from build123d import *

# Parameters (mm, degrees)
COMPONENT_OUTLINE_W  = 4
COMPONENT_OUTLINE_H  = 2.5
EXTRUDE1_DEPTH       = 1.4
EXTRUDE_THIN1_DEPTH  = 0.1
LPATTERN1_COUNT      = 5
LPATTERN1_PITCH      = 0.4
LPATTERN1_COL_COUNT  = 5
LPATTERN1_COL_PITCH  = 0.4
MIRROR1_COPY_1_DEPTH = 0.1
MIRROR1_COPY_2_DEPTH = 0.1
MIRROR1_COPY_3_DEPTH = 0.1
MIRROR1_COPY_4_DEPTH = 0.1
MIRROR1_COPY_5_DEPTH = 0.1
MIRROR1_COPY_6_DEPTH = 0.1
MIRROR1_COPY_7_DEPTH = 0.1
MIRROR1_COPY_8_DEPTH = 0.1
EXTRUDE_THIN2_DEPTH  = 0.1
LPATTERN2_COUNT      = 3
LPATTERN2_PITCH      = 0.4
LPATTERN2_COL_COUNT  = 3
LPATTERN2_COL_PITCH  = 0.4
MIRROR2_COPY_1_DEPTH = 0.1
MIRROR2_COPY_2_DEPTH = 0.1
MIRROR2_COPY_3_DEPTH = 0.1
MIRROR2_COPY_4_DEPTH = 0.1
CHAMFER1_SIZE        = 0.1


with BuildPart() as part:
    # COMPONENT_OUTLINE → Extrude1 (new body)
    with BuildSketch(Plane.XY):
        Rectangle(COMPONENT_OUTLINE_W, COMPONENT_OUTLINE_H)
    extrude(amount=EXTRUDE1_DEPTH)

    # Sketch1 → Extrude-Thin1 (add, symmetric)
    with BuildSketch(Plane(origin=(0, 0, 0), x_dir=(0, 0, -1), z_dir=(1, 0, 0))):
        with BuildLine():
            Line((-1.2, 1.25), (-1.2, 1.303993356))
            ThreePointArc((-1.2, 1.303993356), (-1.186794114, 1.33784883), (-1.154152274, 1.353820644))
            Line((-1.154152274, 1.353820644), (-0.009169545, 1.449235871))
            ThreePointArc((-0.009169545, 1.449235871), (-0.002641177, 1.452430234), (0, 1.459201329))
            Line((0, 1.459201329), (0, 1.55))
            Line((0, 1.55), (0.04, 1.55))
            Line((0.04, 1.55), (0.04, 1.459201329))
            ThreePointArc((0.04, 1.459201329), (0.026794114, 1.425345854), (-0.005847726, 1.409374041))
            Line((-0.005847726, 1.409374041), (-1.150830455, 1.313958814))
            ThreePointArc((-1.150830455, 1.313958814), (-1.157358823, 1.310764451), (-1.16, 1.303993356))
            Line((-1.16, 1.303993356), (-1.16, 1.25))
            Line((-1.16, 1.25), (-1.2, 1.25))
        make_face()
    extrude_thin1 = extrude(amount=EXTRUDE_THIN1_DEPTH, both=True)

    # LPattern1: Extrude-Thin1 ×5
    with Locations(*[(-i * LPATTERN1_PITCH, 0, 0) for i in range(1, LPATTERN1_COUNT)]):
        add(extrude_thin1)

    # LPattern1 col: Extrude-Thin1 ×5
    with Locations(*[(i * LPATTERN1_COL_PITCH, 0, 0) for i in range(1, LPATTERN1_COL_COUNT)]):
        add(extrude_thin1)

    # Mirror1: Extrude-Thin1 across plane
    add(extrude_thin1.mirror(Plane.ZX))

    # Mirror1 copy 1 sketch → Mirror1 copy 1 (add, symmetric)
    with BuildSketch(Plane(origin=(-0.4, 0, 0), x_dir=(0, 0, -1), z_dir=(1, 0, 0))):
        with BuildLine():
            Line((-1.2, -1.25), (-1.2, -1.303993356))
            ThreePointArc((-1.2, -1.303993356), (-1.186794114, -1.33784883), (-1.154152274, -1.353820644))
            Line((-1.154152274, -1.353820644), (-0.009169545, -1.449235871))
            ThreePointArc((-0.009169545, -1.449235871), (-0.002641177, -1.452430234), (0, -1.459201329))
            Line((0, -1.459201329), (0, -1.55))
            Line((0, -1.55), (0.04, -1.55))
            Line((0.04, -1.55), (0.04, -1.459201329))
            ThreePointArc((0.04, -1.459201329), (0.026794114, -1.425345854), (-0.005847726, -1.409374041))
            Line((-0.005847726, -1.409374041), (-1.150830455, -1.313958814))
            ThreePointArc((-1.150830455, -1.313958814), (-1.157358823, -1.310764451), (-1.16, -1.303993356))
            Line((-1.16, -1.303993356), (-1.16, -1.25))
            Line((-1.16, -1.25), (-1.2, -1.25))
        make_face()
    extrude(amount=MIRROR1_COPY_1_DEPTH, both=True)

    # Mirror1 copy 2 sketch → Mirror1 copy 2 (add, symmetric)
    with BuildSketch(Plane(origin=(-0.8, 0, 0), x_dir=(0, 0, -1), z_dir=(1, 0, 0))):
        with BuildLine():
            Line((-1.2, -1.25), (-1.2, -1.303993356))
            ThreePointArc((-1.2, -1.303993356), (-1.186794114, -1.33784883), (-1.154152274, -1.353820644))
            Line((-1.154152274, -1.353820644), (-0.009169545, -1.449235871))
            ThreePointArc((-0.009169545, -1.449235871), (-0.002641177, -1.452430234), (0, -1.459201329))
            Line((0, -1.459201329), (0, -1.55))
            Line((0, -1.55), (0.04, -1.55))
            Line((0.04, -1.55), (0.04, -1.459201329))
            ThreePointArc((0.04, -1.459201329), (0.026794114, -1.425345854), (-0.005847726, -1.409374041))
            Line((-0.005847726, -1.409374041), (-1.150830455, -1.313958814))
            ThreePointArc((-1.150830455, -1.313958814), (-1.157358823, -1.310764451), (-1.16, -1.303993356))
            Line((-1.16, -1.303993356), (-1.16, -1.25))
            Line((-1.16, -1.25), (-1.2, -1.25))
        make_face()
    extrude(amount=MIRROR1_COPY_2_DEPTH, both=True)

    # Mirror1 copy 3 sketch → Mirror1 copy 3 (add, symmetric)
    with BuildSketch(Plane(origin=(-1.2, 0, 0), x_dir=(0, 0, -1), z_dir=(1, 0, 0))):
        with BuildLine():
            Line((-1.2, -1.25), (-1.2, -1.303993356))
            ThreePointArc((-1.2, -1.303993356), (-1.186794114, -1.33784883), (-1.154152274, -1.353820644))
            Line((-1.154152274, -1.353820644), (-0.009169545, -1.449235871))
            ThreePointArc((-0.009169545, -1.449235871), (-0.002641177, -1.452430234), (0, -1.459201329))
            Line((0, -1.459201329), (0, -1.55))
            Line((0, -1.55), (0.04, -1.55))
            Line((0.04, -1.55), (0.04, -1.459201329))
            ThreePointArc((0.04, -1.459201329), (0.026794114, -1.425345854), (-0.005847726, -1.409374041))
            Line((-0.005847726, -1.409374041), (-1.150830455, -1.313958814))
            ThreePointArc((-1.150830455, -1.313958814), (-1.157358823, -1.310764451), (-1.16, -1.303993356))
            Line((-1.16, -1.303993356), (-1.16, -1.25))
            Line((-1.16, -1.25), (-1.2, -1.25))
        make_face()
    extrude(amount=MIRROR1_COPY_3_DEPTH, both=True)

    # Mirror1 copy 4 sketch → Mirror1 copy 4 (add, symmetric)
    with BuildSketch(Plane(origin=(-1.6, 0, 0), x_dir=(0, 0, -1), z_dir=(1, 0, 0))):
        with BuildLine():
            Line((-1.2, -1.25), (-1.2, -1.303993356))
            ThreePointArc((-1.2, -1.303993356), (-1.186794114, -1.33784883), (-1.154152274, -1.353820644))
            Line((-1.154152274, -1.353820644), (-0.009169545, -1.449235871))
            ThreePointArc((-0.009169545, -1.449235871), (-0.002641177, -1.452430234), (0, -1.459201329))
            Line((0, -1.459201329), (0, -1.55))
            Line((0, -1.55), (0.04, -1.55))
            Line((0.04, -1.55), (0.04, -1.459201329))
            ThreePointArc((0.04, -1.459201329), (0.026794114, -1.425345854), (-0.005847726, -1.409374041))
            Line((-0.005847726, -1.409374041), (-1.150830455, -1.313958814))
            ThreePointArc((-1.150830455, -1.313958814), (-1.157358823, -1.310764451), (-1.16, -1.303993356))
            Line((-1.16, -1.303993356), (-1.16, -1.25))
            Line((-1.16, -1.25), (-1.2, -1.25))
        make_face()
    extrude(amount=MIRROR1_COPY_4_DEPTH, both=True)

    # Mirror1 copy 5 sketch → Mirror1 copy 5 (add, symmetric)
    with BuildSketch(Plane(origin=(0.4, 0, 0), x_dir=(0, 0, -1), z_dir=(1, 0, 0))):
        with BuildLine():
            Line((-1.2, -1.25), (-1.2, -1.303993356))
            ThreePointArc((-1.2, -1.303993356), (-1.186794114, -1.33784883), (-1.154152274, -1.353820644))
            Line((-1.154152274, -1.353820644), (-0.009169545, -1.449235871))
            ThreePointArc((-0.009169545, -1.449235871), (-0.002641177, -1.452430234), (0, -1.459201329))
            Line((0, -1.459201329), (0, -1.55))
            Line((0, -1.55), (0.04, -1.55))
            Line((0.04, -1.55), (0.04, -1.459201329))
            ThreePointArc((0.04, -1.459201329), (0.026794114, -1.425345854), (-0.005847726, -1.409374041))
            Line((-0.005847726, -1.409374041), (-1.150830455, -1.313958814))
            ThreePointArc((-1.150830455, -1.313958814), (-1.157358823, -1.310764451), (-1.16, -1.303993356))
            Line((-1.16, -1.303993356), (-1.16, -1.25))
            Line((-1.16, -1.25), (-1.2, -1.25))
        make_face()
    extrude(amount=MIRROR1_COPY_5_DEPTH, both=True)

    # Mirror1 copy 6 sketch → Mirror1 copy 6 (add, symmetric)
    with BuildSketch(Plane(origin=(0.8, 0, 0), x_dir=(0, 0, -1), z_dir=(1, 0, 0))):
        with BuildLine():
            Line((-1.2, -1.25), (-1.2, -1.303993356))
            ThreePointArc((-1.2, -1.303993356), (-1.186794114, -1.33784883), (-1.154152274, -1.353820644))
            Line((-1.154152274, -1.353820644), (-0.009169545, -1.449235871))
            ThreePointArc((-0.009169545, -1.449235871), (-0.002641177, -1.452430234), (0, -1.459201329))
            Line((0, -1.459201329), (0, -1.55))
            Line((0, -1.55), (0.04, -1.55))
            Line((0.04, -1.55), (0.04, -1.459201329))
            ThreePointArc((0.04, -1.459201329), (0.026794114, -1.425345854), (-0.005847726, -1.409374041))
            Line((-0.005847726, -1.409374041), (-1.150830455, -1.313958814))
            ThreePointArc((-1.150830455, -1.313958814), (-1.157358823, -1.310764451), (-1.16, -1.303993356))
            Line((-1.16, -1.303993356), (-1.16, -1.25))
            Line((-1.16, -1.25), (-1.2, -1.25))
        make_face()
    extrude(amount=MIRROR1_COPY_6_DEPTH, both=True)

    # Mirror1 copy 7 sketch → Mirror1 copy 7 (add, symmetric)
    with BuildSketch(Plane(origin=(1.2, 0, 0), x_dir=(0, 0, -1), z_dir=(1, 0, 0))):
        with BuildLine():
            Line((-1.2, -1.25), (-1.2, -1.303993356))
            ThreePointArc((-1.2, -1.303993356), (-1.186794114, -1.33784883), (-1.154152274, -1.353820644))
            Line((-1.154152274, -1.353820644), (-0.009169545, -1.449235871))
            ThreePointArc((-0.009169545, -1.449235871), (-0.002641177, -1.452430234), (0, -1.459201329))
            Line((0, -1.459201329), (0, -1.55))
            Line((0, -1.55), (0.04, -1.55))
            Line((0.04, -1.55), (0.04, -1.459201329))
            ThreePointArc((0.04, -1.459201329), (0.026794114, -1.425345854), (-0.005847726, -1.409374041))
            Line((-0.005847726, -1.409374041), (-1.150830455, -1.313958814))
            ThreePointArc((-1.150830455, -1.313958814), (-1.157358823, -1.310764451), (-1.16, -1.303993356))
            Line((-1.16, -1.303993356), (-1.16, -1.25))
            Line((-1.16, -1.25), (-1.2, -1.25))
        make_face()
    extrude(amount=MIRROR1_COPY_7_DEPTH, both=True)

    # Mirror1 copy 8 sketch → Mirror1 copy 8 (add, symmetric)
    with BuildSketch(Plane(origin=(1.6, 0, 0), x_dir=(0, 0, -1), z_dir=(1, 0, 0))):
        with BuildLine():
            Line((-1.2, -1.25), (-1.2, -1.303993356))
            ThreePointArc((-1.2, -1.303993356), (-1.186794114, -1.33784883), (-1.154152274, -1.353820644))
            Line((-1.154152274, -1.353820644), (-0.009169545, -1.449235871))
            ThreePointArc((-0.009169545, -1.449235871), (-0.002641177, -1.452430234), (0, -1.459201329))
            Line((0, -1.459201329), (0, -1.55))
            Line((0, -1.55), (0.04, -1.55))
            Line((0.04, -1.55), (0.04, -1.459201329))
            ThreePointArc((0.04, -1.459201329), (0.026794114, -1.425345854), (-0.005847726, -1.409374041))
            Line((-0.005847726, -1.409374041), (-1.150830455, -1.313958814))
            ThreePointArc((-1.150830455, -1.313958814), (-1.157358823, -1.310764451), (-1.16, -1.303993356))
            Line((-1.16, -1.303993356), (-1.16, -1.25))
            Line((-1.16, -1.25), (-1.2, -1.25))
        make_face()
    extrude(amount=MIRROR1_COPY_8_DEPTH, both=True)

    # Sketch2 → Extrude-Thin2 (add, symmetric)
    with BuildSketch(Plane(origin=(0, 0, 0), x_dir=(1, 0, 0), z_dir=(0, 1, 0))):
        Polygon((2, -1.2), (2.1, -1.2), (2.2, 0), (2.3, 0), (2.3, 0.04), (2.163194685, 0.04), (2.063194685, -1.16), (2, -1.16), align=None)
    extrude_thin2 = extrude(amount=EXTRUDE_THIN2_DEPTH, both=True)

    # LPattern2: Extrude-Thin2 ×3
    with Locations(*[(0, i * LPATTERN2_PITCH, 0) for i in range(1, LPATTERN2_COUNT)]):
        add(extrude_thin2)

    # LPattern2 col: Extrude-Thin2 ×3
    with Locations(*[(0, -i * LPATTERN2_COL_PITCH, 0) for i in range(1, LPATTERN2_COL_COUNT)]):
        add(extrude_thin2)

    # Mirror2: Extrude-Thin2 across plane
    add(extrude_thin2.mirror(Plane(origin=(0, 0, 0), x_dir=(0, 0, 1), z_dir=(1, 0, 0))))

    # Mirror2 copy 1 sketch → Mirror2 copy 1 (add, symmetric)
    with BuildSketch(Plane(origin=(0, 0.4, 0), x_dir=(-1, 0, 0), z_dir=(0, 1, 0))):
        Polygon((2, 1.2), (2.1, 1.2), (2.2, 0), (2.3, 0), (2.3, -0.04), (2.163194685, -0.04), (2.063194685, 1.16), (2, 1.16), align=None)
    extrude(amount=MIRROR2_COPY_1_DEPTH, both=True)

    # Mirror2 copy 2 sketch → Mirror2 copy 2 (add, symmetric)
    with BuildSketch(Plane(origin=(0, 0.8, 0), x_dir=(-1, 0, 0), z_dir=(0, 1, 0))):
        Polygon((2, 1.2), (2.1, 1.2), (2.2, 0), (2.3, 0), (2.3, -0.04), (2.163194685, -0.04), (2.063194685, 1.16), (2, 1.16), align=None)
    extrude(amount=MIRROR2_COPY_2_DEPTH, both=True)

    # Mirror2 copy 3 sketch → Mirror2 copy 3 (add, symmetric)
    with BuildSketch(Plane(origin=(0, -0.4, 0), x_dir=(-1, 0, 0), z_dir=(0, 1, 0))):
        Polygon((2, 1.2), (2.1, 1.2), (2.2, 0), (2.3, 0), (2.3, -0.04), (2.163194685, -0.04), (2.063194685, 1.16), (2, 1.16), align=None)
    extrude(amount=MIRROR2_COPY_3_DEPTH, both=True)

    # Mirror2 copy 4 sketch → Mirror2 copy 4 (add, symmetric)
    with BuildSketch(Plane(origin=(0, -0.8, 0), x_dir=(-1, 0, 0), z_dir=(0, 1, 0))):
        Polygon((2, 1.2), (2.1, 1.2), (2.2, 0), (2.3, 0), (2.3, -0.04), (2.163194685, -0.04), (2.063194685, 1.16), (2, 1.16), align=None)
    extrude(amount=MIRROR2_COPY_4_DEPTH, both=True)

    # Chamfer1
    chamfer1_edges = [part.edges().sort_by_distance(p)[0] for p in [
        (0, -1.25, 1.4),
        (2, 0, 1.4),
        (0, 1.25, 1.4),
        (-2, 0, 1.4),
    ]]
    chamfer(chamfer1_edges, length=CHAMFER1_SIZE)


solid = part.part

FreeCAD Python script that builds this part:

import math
import FreeCAD as App
import Part
import Sketcher

V = App.Vector
Q = App.Units.Quantity


def edges_at(feature, points):
    """Names of the edges that pass closest to the given points."""
    edges = feature.Shape.Edges
    near = lambda p: min(range(len(edges)), key=lambda i: edges[i].distToShape(Part.Vertex(*p))[0])
    return sorted({f"Edge{near(p) + 1}" for p in points})


def add_polygon(sketch, points):
    """Adds a closed chain of lines whose ends are joined by coincident constraints."""
    first, n = sketch.GeometryCount, len(points)
    for a, b in zip(points, points[1:] + points[:1]):
        sketch.addGeometry(Part.LineSegment(App.Vector(*a, 0), App.Vector(*b, 0)), False)
    for i in range(n):
        sketch.addConstraint(Sketcher.Constraint("Coincident", first + i, 2, first + (i + 1) % n, 1))

doc = App.newDocument("Part")
body = doc.addObject("PartDesign::Body", "Body")

# Sketch on XY plane
sketch1 = body.newObject("Sketcher::SketchObject", "Sketch")
sketch1.AttachmentSupport = (doc.getObject("XY_Plane"), [""])
sketch1.MapMode = "FlatFace"
add_polygon(sketch1, [(-2, 1.25), (-2, -1.25), (2, -1.25), (2, 1.25)])  # lines 0-3
sketch1.addConstraint([
    Sketcher.Constraint("Vertical", 0),
    Sketcher.Constraint("Horizontal", 1),
    Sketcher.Constraint("Vertical", 2),
    Sketcher.Constraint("Horizontal", 3),
    Sketcher.Constraint("Symmetric", 0, 2, 2, 2, -1, 1),
    Sketcher.Constraint("DistanceX", 1, 1, 1, 2, Q("4 mm")),
    Sketcher.Constraint("DistanceY", 0, 2, 0, 1, Q("2.5 mm")),
])
pad1 = body.newObject("PartDesign::Pad", "Pad")
pad1.Profile = sketch1
pad1.Length = 1.4

# Sketch on YZ plane
sketch2 = body.newObject("Sketcher::SketchObject", "Sketch001")
sketch2.AttachmentSupport = (doc.getObject("YZ_Plane"), [""])
sketch2.MapMode = "FlatFace"
sketch2.addGeometry([
    Part.LineSegment(V(1.303993, 1.2, 0), V(1.25, 1.2, 0)),  # 0
    Part.LineSegment(V(1.25, 1.2, 0), V(1.25, 1.16, 0)),  # 1
    Part.LineSegment(V(1.25, 1.16, 0), V(1.303993, 1.16, 0)),  # 2
    Part.ArcOfCircle(Part.Circle(V(1.303993, 1.15, 0), V(0, 0, 1), 0.01), math.radians(4.763643), math.radians(90)),  # 3
    Part.LineSegment(V(1.313959, 1.15083, 0), V(1.409374, 0.005848, 0)),  # 4
    Part.ArcOfCircle(Part.Circle(V(1.459201, 0.01, 0), V(0, 0, 1), 0.05), math.radians(-175.236358), math.radians(-90)),  # 5
    Part.LineSegment(V(1.459201, -0.04, 0), V(1.55, -0.04, 0)),  # 6
    Part.LineSegment(V(1.55, -0.04, 0), V(1.55, 0, 0)),  # 7
    Part.LineSegment(V(1.55, 0, 0), V(1.459201, 0, 0)),  # 8
    Part.ArcOfCircle(Part.Circle(V(1.459201, 0.01, 0), V(0, 0, 1), 0.01), math.radians(-175.236357), math.radians(-90)),  # 9
    Part.LineSegment(V(1.449236, 0.00917, 0), V(1.353821, 1.154152, 0)),  # 10
    Part.ArcOfCircle(Part.Circle(V(1.303993, 1.15, 0), V(0, 0, 1), 0.05), math.radians(4.763644), math.radians(89.999999)),  # 11
], False)
sketch2.addConstraint([
    Sketcher.Constraint("Coincident", 0, 2, 1, 1),
    Sketcher.Constraint("Coincident", 1, 2, 2, 1),
    Sketcher.Constraint("Tangent", 2, 2, 3, 2),
    Sketcher.Constraint("Tangent", 3, 1, 4, 1),
    Sketcher.Constraint("Tangent", 4, 2, 5, 1),
    Sketcher.Constraint("Tangent", 5, 2, 6, 1),
    Sketcher.Constraint("Coincident", 6, 2, 7, 1),
    Sketcher.Constraint("Coincident", 7, 2, 8, 1),
    Sketcher.Constraint("Tangent", 8, 2, 9, 2),
    Sketcher.Constraint("Tangent", 9, 1, 10, 1),
    Sketcher.Constraint("Tangent", 10, 2, 11, 1),
    Sketcher.Constraint("Tangent", 11, 2, 0, 1),
    Sketcher.Constraint("Horizontal", 0),
    Sketcher.Constraint("Vertical", 1),
    Sketcher.Constraint("Horizontal", 2),
    Sketcher.Constraint("Horizontal", 6),
    Sketcher.Constraint("Vertical", 7),
    Sketcher.Constraint("Horizontal", 8),
    Sketcher.Constraint("Coincident", 9, 3, 5, 3),
    Sketcher.Constraint("Coincident", 11, 3, 3, 3),
    Sketcher.Constraint("Equal", 3, 9),
    Sketcher.Constraint("Equal", 5, 11),
    Sketcher.Constraint("PointOnObject", 7, 2, -1),
    Sketcher.Constraint("Radius", 3, Q("0.01 mm")),
    Sketcher.Constraint("Radius", 5, Q("0.05 mm")),
    Sketcher.Constraint("DistanceY", -1, 1, 0, 2, Q("1.2 mm")),
    Sketcher.Constraint("DistanceX", -1, 1, 0, 2, Q("1.25 mm")),
    Sketcher.Constraint("DistanceX", -1, 1, 6, 2, Q("1.55 mm")),
    Sketcher.Constraint("DistanceX", 6, 1, 6, 2, Q("0.090799 mm")),
    Sketcher.Constraint("Distance", 4, Q("1.148951 mm")),
])
pad2 = body.newObject("PartDesign::Pad", "Pad001")
pad2.Profile = sketch2
pad2.Length = 0.2
pad2.Midplane = True
doc.recompute()

linearpattern = body.newObject("PartDesign::LinearPattern", "LinearPattern")
linearpattern.Originals = [pad2]
linearpattern.Direction = (doc.getObject("X_Axis"), [""])
linearpattern.Mode = "offset"
linearpattern.Offset = 0.4
linearpattern.Occurrences = 5
linearpattern.Reversed = True
body.Tip = linearpattern
doc.recompute()

linearpattern2 = body.newObject("PartDesign::LinearPattern", "LinearPattern001")
linearpattern2.Originals = [pad2]
linearpattern2.Direction = (doc.getObject("X_Axis"), [""])
linearpattern2.Mode = "offset"
linearpattern2.Offset = 0.4
linearpattern2.Occurrences = 5
body.Tip = linearpattern2
doc.recompute()

mirrored = body.newObject("PartDesign::Mirrored", "Mirrored")
mirrored.Originals = [pad2]
mirrored.MirrorPlane = (doc.getObject("XZ_Plane"), [""])
body.Tip = mirrored

# Sketch on YZ plane
sketch3 = body.newObject("Sketcher::SketchObject", "Sketch002")
sketch3.AttachmentSupport = (doc.getObject("YZ_Plane"), [""])
sketch3.MapMode = "FlatFace"
sketch3.AttachmentOffset = App.Placement(V(0, 0, -0.4), App.Rotation())
sketch3.addGeometry([
    Part.LineSegment(V(-1.25, 1.2, 0), V(-1.303993, 1.2, 0)),  # 0
    Part.ArcOfCircle(Part.Circle(V(-1.303993, 1.15, 0), V(0, 0, 1), 0.05), math.radians(90.000001), math.radians(175.236356)),  # 1
    Part.LineSegment(V(-1.353821, 1.154152, 0), V(-1.449236, 0.00917, 0)),  # 2
    Part.ArcOfCircle(Part.Circle(V(-1.459201, 0.01, 0), V(0, 0, 1), 0.01), math.radians(-90), math.radians(-4.763643)),  # 3
    Part.LineSegment(V(-1.459201, 0, 0), V(-1.55, 0, 0)),  # 4
    Part.LineSegment(V(-1.55, 0, 0), V(-1.55, -0.04, 0)),  # 5
    Part.LineSegment(V(-1.55, -0.04, 0), V(-1.459201, -0.04, 0)),  # 6
    Part.ArcOfCircle(Part.Circle(V(-1.459201, 0.01, 0), V(0, 0, 1), 0.05), math.radians(-90), math.radians(-4.763642)),  # 7
    Part.LineSegment(V(-1.409374, 0.005848, 0), V(-1.313959, 1.15083, 0)),  # 8
    Part.ArcOfCircle(Part.Circle(V(-1.303993, 1.15, 0), V(0, 0, 1), 0.01), math.radians(90), math.radians(175.236357)),  # 9
    Part.LineSegment(V(-1.303993, 1.16, 0), V(-1.25, 1.16, 0)),  # 10
    Part.LineSegment(V(-1.25, 1.16, 0), V(-1.25, 1.2, 0)),  # 11
], False)
sketch3.addConstraint([
    Sketcher.Constraint("Tangent", 0, 2, 1, 1),
    Sketcher.Constraint("Tangent", 1, 2, 2, 1),
    Sketcher.Constraint("Tangent", 2, 2, 3, 2),
    Sketcher.Constraint("Tangent", 3, 1, 4, 1),
    Sketcher.Constraint("Coincident", 4, 2, 5, 1),
    Sketcher.Constraint("Coincident", 5, 2, 6, 1),
    Sketcher.Constraint("Tangent", 6, 2, 7, 1),
    Sketcher.Constraint("Tangent", 7, 2, 8, 1),
    Sketcher.Constraint("Tangent", 8, 2, 9, 2),
    Sketcher.Constraint("Tangent", 9, 1, 10, 1),
    Sketcher.Constraint("Coincident", 10, 2, 11, 1),
    Sketcher.Constraint("Coincident", 11, 2, 0, 1),
    Sketcher.Constraint("Horizontal", 0),
    Sketcher.Constraint("Horizontal", 4),
    Sketcher.Constraint("Vertical", 5),
    Sketcher.Constraint("Horizontal", 6),
    Sketcher.Constraint("Horizontal", 10),
    Sketcher.Constraint("Vertical", 11),
    Sketcher.Constraint("Coincident", 7, 3, 3, 3),
    Sketcher.Constraint("Coincident", 9, 3, 1, 3),
    Sketcher.Constraint("Equal", 1, 7),
    Sketcher.Constraint("Equal", 3, 9),
    Sketcher.Constraint("PointOnObject", 3, 1, -1),
    Sketcher.Constraint("Radius", 1, Q("0.05 mm")),
    Sketcher.Constraint("Radius", 3, Q("0.01 mm")),
    Sketcher.Constraint("DistanceY", -1, 1, 0, 2, Q("1.2 mm")),
    Sketcher.Constraint("DistanceX", 4, 2, -1, 1, Q("1.55 mm")),
    Sketcher.Constraint("DistanceX", 10, 2, -1, 1, Q("1.25 mm")),
    Sketcher.Constraint("DistanceX", 4, 2, 4, 1, Q("0.090799 mm")),
    Sketcher.Constraint("Distance", 2, Q("1.148951 mm")),
])
pad3 = body.newObject("PartDesign::Pad", "Pad002")
pad3.Profile = sketch3
pad3.Length = 0.2
pad3.Midplane = True

# Sketch on YZ plane
sketch4 = body.newObject("Sketcher::SketchObject", "Sketch003")
sketch4.AttachmentSupport = (doc.getObject("YZ_Plane"), [""])
sketch4.MapMode = "FlatFace"
sketch4.AttachmentOffset = App.Placement(V(0, 0, -0.8), App.Rotation())
sketch4.addGeometry([
    Part.LineSegment(V(-1.25, 1.2, 0), V(-1.303993, 1.2, 0)),  # 0
    Part.ArcOfCircle(Part.Circle(V(-1.303993, 1.15, 0), V(0, 0, 1), 0.05), math.radians(90.000001), math.radians(175.236356)),  # 1
    Part.LineSegment(V(-1.353821, 1.154152, 0), V(-1.449236, 0.00917, 0)),  # 2
    Part.ArcOfCircle(Part.Circle(V(-1.459201, 0.01, 0), V(0, 0, 1), 0.01), math.radians(-90), math.radians(-4.763643)),  # 3
    Part.LineSegment(V(-1.459201, 0, 0), V(-1.55, 0, 0)),  # 4
    Part.LineSegment(V(-1.55, 0, 0), V(-1.55, -0.04, 0)),  # 5
    Part.LineSegment(V(-1.55, -0.04, 0), V(-1.459201, -0.04, 0)),  # 6
    Part.ArcOfCircle(Part.Circle(V(-1.459201, 0.01, 0), V(0, 0, 1), 0.05), math.radians(-90), math.radians(-4.763642)),  # 7
    Part.LineSegment(V(-1.409374, 0.005848, 0), V(-1.313959, 1.15083, 0)),  # 8
    Part.ArcOfCircle(Part.Circle(V(-1.303993, 1.15, 0), V(0, 0, 1), 0.01), math.radians(90), math.radians(175.236357)),  # 9
    Part.LineSegment(V(-1.303993, 1.16, 0), V(-1.25, 1.16, 0)),  # 10
    Part.LineSegment(V(-1.25, 1.16, 0), V(-1.25, 1.2, 0)),  # 11
], False)
sketch4.addConstraint([
    Sketcher.Constraint("Tangent", 0, 2, 1, 1),
    Sketcher.Constraint("Tangent", 1, 2, 2, 1),
    Sketcher.Constraint("Tangent", 2, 2, 3, 2),
    Sketcher.Constraint("Tangent", 3, 1, 4, 1),
    Sketcher.Constraint("Coincident", 4, 2, 5, 1),
    Sketcher.Constraint("Coincident", 5, 2, 6, 1),
    Sketcher.Constraint("Tangent", 6, 2, 7, 1),
    Sketcher.Constraint("Tangent", 7, 2, 8, 1),
    Sketcher.Constraint("Tangent", 8, 2, 9, 2),
    Sketcher.Constraint("Tangent", 9, 1, 10, 1),
    Sketcher.Constraint("Coincident", 10, 2, 11, 1),
    Sketcher.Constraint("Coincident", 11, 2, 0, 1),
    Sketcher.Constraint("Horizontal", 0),
    Sketcher.Constraint("Horizontal", 4),
    Sketcher.Constraint("Vertical", 5),
    Sketcher.Constraint("Horizontal", 6),
    Sketcher.Constraint("Horizontal", 10),
    Sketcher.Constraint("Vertical", 11),
    Sketcher.Constraint("Coincident", 7, 3, 3, 3),
    Sketcher.Constraint("Coincident", 9, 3, 1, 3),
    Sketcher.Constraint("Equal", 1, 7),
    Sketcher.Constraint("Equal", 3, 9),
    Sketcher.Constraint("PointOnObject", 3, 1, -1),
    Sketcher.Constraint("Radius", 1, Q("0.05 mm")),
    Sketcher.Constraint("Radius", 3, Q("0.01 mm")),
    Sketcher.Constraint("DistanceY", -1, 1, 0, 2, Q("1.2 mm")),
    Sketcher.Constraint("DistanceX", 4, 2, -1, 1, Q("1.55 mm")),
    Sketcher.Constraint("DistanceX", 10, 2, -1, 1, Q("1.25 mm")),
    Sketcher.Constraint("DistanceX", 4, 2, 4, 1, Q("0.090799 mm")),
    Sketcher.Constraint("Distance", 2, Q("1.148951 mm")),
])
pad4 = body.newObject("PartDesign::Pad", "Pad003")
pad4.Profile = sketch4
pad4.Length = 0.2
pad4.Midplane = True

# Sketch on YZ plane
sketch5 = body.newObject("Sketcher::SketchObject", "Sketch004")
sketch5.AttachmentSupport = (doc.getObject("YZ_Plane"), [""])
sketch5.MapMode = "FlatFace"
sketch5.AttachmentOffset = App.Placement(V(0, 0, -1.2), App.Rotation())
sketch5.addGeometry([
    Part.LineSegment(V(-1.25, 1.2, 0), V(-1.303993, 1.2, 0)),  # 0
    Part.ArcOfCircle(Part.Circle(V(-1.303993, 1.15, 0), V(0, 0, 1), 0.05), math.radians(90.000001), math.radians(175.236356)),  # 1
    Part.LineSegment(V(-1.353821, 1.154152, 0), V(-1.449236, 0.00917, 0)),  # 2
    Part.ArcOfCircle(Part.Circle(V(-1.459201, 0.01, 0), V(0, 0, 1), 0.01), math.radians(-90), math.radians(-4.763643)),  # 3
    Part.LineSegment(V(-1.459201, 0, 0), V(-1.55, 0, 0)),  # 4
    Part.LineSegment(V(-1.55, 0, 0), V(-1.55, -0.04, 0)),  # 5
    Part.LineSegment(V(-1.55, -0.04, 0), V(-1.459201, -0.04, 0)),  # 6
    Part.ArcOfCircle(Part.Circle(V(-1.459201, 0.01, 0), V(0, 0, 1), 0.05), math.radians(-90), math.radians(-4.763642)),  # 7
    Part.LineSegment(V(-1.409374, 0.005848, 0), V(-1.313959, 1.15083, 0)),  # 8
    Part.ArcOfCircle(Part.Circle(V(-1.303993, 1.15, 0), V(0, 0, 1), 0.01), math.radians(90), math.radians(175.236357)),  # 9
    Part.LineSegment(V(-1.303993, 1.16, 0), V(-1.25, 1.16, 0)),  # 10
    Part.LineSegment(V(-1.25, 1.16, 0), V(-1.25, 1.2, 0)),  # 11
], False)
sketch5.addConstraint([
    Sketcher.Constraint("Tangent", 0, 2, 1, 1),
    Sketcher.Constraint("Tangent", 1, 2, 2, 1),
    Sketcher.Constraint("Tangent", 2, 2, 3, 2),
    Sketcher.Constraint("Tangent", 3, 1, 4, 1),
    Sketcher.Constraint("Coincident", 4, 2, 5, 1),
    Sketcher.Constraint("Coincident", 5, 2, 6, 1),
    Sketcher.Constraint("Tangent", 6, 2, 7, 1),
    Sketcher.Constraint("Tangent", 7, 2, 8, 1),
    Sketcher.Constraint("Tangent", 8, 2, 9, 2),
    Sketcher.Constraint("Tangent", 9, 1, 10, 1),
    Sketcher.Constraint("Coincident", 10, 2, 11, 1),
    Sketcher.Constraint("Coincident", 11, 2, 0, 1),
    Sketcher.Constraint("Horizontal", 0),
    Sketcher.Constraint("Horizontal", 4),
    Sketcher.Constraint("Vertical", 5),
    Sketcher.Constraint("Horizontal", 6),
    Sketcher.Constraint("Horizontal", 10),
    Sketcher.Constraint("Vertical", 11),
    Sketcher.Constraint("Coincident", 7, 3, 3, 3),
    Sketcher.Constraint("Coincident", 9, 3, 1, 3),
    Sketcher.Constraint("Equal", 1, 7),
    Sketcher.Constraint("Equal", 3, 9),
    Sketcher.Constraint("PointOnObject", 3, 1, -1),
    Sketcher.Constraint("Radius", 1, Q("0.05 mm")),
    Sketcher.Constraint("Radius", 3, Q("0.01 mm")),
    Sketcher.Constraint("DistanceY", -1, 1, 0, 2, Q("1.2 mm")),
    Sketcher.Constraint("DistanceX", 4, 2, -1, 1, Q("1.55 mm")),
    Sketcher.Constraint("DistanceX", 10, 2, -1, 1, Q("1.25 mm")),
    Sketcher.Constraint("DistanceX", 4, 2, 4, 1, Q("0.090799 mm")),
    Sketcher.Constraint("Distance", 2, Q("1.148951 mm")),
])
pad5 = body.newObject("PartDesign::Pad", "Pad004")
pad5.Profile = sketch5
pad5.Length = 0.2
pad5.Midplane = True

# Sketch on YZ plane
sketch6 = body.newObject("Sketcher::SketchObject", "Sketch005")
sketch6.AttachmentSupport = (doc.getObject("YZ_Plane"), [""])
sketch6.MapMode = "FlatFace"
sketch6.AttachmentOffset = App.Placement(V(0, 0, -1.6), App.Rotation())
sketch6.addGeometry([
    Part.LineSegment(V(-1.25, 1.2, 0), V(-1.303993, 1.2, 0)),  # 0
    Part.ArcOfCircle(Part.Circle(V(-1.303993, 1.15, 0), V(0, 0, 1), 0.05), math.radians(90.000001), math.radians(175.236356)),  # 1
    Part.LineSegment(V(-1.353821, 1.154152, 0), V(-1.449236, 0.00917, 0)),  # 2
    Part.ArcOfCircle(Part.Circle(V(-1.459201, 0.01, 0), V(0, 0, 1), 0.01), math.radians(-90), math.radians(-4.763643)),  # 3
    Part.LineSegment(V(-1.459201, 0, 0), V(-1.55, 0, 0)),  # 4
    Part.LineSegment(V(-1.55, 0, 0), V(-1.55, -0.04, 0)),  # 5
    Part.LineSegment(V(-1.55, -0.04, 0), V(-1.459201, -0.04, 0)),  # 6
    Part.ArcOfCircle(Part.Circle(V(-1.459201, 0.01, 0), V(0, 0, 1), 0.05), math.radians(-90), math.radians(-4.763642)),  # 7
    Part.LineSegment(V(-1.409374, 0.005848, 0), V(-1.313959, 1.15083, 0)),  # 8
    Part.ArcOfCircle(Part.Circle(V(-1.303993, 1.15, 0), V(0, 0, 1), 0.01), math.radians(90), math.radians(175.236357)),  # 9
    Part.LineSegment(V(-1.303993, 1.16, 0), V(-1.25, 1.16, 0)),  # 10
    Part.LineSegment(V(-1.25, 1.16, 0), V(-1.25, 1.2, 0)),  # 11
], False)
sketch6.addConstraint([
    Sketcher.Constraint("Tangent", 0, 2, 1, 1),
    Sketcher.Constraint("Tangent", 1, 2, 2, 1),
    Sketcher.Constraint("Tangent", 2, 2, 3, 2),
    Sketcher.Constraint("Tangent", 3, 1, 4, 1),
    Sketcher.Constraint("Coincident", 4, 2, 5, 1),
    Sketcher.Constraint("Coincident", 5, 2, 6, 1),
    Sketcher.Constraint("Tangent", 6, 2, 7, 1),
    Sketcher.Constraint("Tangent", 7, 2, 8, 1),
    Sketcher.Constraint("Tangent", 8, 2, 9, 2),
    Sketcher.Constraint("Tangent", 9, 1, 10, 1),
    Sketcher.Constraint("Coincident", 10, 2, 11, 1),
    Sketcher.Constraint("Coincident", 11, 2, 0, 1),
    Sketcher.Constraint("Horizontal", 0),
    Sketcher.Constraint("Horizontal", 4),
    Sketcher.Constraint("Vertical", 5),
    Sketcher.Constraint("Horizontal", 6),
    Sketcher.Constraint("Horizontal", 10),
    Sketcher.Constraint("Vertical", 11),
    Sketcher.Constraint("Coincident", 7, 3, 3, 3),
    Sketcher.Constraint("Coincident", 9, 3, 1, 3),
    Sketcher.Constraint("Equal", 1, 7),
    Sketcher.Constraint("Equal", 3, 9),
    Sketcher.Constraint("PointOnObject", 3, 1, -1),
    Sketcher.Constraint("Radius", 1, Q("0.05 mm")),
    Sketcher.Constraint("Radius", 3, Q("0.01 mm")),
    Sketcher.Constraint("DistanceY", -1, 1, 0, 2, Q("1.2 mm")),
    Sketcher.Constraint("DistanceX", 4, 2, -1, 1, Q("1.55 mm")),
    Sketcher.Constraint("DistanceX", 10, 2, -1, 1, Q("1.25 mm")),
    Sketcher.Constraint("DistanceX", 4, 2, 4, 1, Q("0.090799 mm")),
    Sketcher.Constraint("Distance", 2, Q("1.148951 mm")),
])
pad6 = body.newObject("PartDesign::Pad", "Pad005")
pad6.Profile = sketch6
pad6.Length = 0.2
pad6.Midplane = True

# Sketch on YZ plane
sketch7 = body.newObject("Sketcher::SketchObject", "Sketch006")
sketch7.AttachmentSupport = (doc.getObject("YZ_Plane"), [""])
sketch7.MapMode = "FlatFace"
sketch7.AttachmentOffset = App.Placement(V(0, 0, 0.4), App.Rotation())
sketch7.addGeometry([
    Part.LineSegment(V(-1.25, 1.2, 0), V(-1.303993, 1.2, 0)),  # 0
    Part.ArcOfCircle(Part.Circle(V(-1.303993, 1.15, 0), V(0, 0, 1), 0.05), math.radians(90.000001), math.radians(175.236356)),  # 1
    Part.LineSegment(V(-1.353821, 1.154152, 0), V(-1.449236, 0.00917, 0)),  # 2
    Part.ArcOfCircle(Part.Circle(V(-1.459201, 0.01, 0), V(0, 0, 1), 0.01), math.radians(-90), math.radians(-4.763643)),  # 3
    Part.LineSegment(V(-1.459201, 0, 0), V(-1.55, 0, 0)),  # 4
    Part.LineSegment(V(-1.55, 0, 0), V(-1.55, -0.04, 0)),  # 5
    Part.LineSegment(V(-1.55, -0.04, 0), V(-1.459201, -0.04, 0)),  # 6
    Part.ArcOfCircle(Part.Circle(V(-1.459201, 0.01, 0), V(0, 0, 1), 0.05), math.radians(-90), math.radians(-4.763642)),  # 7
    Part.LineSegment(V(-1.409374, 0.005848, 0), V(-1.313959, 1.15083, 0)),  # 8
    Part.ArcOfCircle(Part.Circle(V(-1.303993, 1.15, 0), V(0, 0, 1), 0.01), math.radians(90), math.radians(175.236357)),  # 9
    Part.LineSegment(V(-1.303993, 1.16, 0), V(-1.25, 1.16, 0)),  # 10
    Part.LineSegment(V(-1.25, 1.16, 0), V(-1.25, 1.2, 0)),  # 11
], False)
sketch7.addConstraint([
    Sketcher.Constraint("Tangent", 0, 2, 1, 1),
    Sketcher.Constraint("Tangent", 1, 2, 2, 1),
    Sketcher.Constraint("Tangent", 2, 2, 3, 2),
    Sketcher.Constraint("Tangent", 3, 1, 4, 1),
    Sketcher.Constraint("Coincident", 4, 2, 5, 1),
    Sketcher.Constraint("Coincident", 5, 2, 6, 1),
    Sketcher.Constraint("Tangent", 6, 2, 7, 1),
    Sketcher.Constraint("Tangent", 7, 2, 8, 1),
    Sketcher.Constraint("Tangent", 8, 2, 9, 2),
    Sketcher.Constraint("Tangent", 9, 1, 10, 1),
    Sketcher.Constraint("Coincident", 10, 2, 11, 1),
    Sketcher.Constraint("Coincident", 11, 2, 0, 1),
    Sketcher.Constraint("Horizontal", 0),
    Sketcher.Constraint("Horizontal", 4),
    Sketcher.Constraint("Vertical", 5),
    Sketcher.Constraint("Horizontal", 6),
    Sketcher.Constraint("Horizontal", 10),
    Sketcher.Constraint("Vertical", 11),
    Sketcher.Constraint("Coincident", 7, 3, 3, 3),
    Sketcher.Constraint("Coincident", 9, 3, 1, 3),
    Sketcher.Constraint("Equal", 1, 7),
    Sketcher.Constraint("Equal", 3, 9),
    Sketcher.Constraint("PointOnObject", 3, 1, -1),
    Sketcher.Constraint("Radius", 1, Q("0.05 mm")),
    Sketcher.Constraint("Radius", 3, Q("0.01 mm")),
    Sketcher.Constraint("DistanceY", -1, 1, 0, 2, Q("1.2 mm")),
    Sketcher.Constraint("DistanceX", 4, 2, -1, 1, Q("1.55 mm")),
    Sketcher.Constraint("DistanceX", 10, 2, -1, 1, Q("1.25 mm")),
    Sketcher.Constraint("DistanceX", 4, 2, 4, 1, Q("0.090799 mm")),
    Sketcher.Constraint("Distance", 2, Q("1.148951 mm")),
])
pad7 = body.newObject("PartDesign::Pad", "Pad006")
pad7.Profile = sketch7
pad7.Length = 0.2
pad7.Midplane = True

# Sketch on YZ plane
sketch8 = body.newObject("Sketcher::SketchObject", "Sketch007")
sketch8.AttachmentSupport = (doc.getObject("YZ_Plane"), [""])
sketch8.MapMode = "FlatFace"
sketch8.AttachmentOffset = App.Placement(V(0, 0, 0.8), App.Rotation())
sketch8.addGeometry([
    Part.LineSegment(V(-1.25, 1.2, 0), V(-1.303993, 1.2, 0)),  # 0
    Part.ArcOfCircle(Part.Circle(V(-1.303993, 1.15, 0), V(0, 0, 1), 0.05), math.radians(90.000001), math.radians(175.236356)),  # 1
    Part.LineSegment(V(-1.353821, 1.154152, 0), V(-1.449236, 0.00917, 0)),  # 2
    Part.ArcOfCircle(Part.Circle(V(-1.459201, 0.01, 0), V(0, 0, 1), 0.01), math.radians(-90), math.radians(-4.763643)),  # 3
    Part.LineSegment(V(-1.459201, 0, 0), V(-1.55, 0, 0)),  # 4
    Part.LineSegment(V(-1.55, 0, 0), V(-1.55, -0.04, 0)),  # 5
    Part.LineSegment(V(-1.55, -0.04, 0), V(-1.459201, -0.04, 0)),  # 6
    Part.ArcOfCircle(Part.Circle(V(-1.459201, 0.01, 0), V(0, 0, 1), 0.05), math.radians(-90), math.radians(-4.763642)),  # 7
    Part.LineSegment(V(-1.409374, 0.005848, 0), V(-1.313959, 1.15083, 0)),  # 8
    Part.ArcOfCircle(Part.Circle(V(-1.303993, 1.15, 0), V(0, 0, 1), 0.01), math.radians(90), math.radians(175.236357)),  # 9
    Part.LineSegment(V(-1.303993, 1.16, 0), V(-1.25, 1.16, 0)),  # 10
    Part.LineSegment(V(-1.25, 1.16, 0), V(-1.25, 1.2, 0)),  # 11
], False)
sketch8.addConstraint([
    Sketcher.Constraint("Tangent", 0, 2, 1, 1),
    Sketcher.Constraint("Tangent", 1, 2, 2, 1),
    Sketcher.Constraint("Tangent", 2, 2, 3, 2),
    Sketcher.Constraint("Tangent", 3, 1, 4, 1),
    Sketcher.Constraint("Coincident", 4, 2, 5, 1),
    Sketcher.Constraint("Coincident", 5, 2, 6, 1),
    Sketcher.Constraint("Tangent", 6, 2, 7, 1),
    Sketcher.Constraint("Tangent", 7, 2, 8, 1),
    Sketcher.Constraint("Tangent", 8, 2, 9, 2),
    Sketcher.Constraint("Tangent", 9, 1, 10, 1),
    Sketcher.Constraint("Coincident", 10, 2, 11, 1),
    Sketcher.Constraint("Coincident", 11, 2, 0, 1),
    Sketcher.Constraint("Horizontal", 0),
    Sketcher.Constraint("Horizontal", 4),
    Sketcher.Constraint("Vertical", 5),
    Sketcher.Constraint("Horizontal", 6),
    Sketcher.Constraint("Horizontal", 10),
    Sketcher.Constraint("Vertical", 11),
    Sketcher.Constraint("Coincident", 7, 3, 3, 3),
    Sketcher.Constraint("Coincident", 9, 3, 1, 3),
    Sketcher.Constraint("Equal", 1, 7),
    Sketcher.Constraint("Equal", 3, 9),
    Sketcher.Constraint("PointOnObject", 3, 1, -1),
    Sketcher.Constraint("Radius", 1, Q("0.05 mm")),
    Sketcher.Constraint("Radius", 3, Q("0.01 mm")),
    Sketcher.Constraint("DistanceY", -1, 1, 0, 2, Q("1.2 mm")),
    Sketcher.Constraint("DistanceX", 4, 2, -1, 1, Q("1.55 mm")),
    Sketcher.Constraint("DistanceX", 10, 2, -1, 1, Q("1.25 mm")),
    Sketcher.Constraint("DistanceX", 4, 2, 4, 1, Q("0.090799 mm")),
    Sketcher.Constraint("Distance", 2, Q("1.148951 mm")),
])
pad8 = body.newObject("PartDesign::Pad", "Pad007")
pad8.Profile = sketch8
pad8.Length = 0.2
pad8.Midplane = True

# Sketch on YZ plane
sketch9 = body.newObject("Sketcher::SketchObject", "Sketch008")
sketch9.AttachmentSupport = (doc.getObject("YZ_Plane"), [""])
sketch9.MapMode = "FlatFace"
sketch9.AttachmentOffset = App.Placement(V(0, 0, 1.2), App.Rotation())
sketch9.addGeometry([
    Part.LineSegment(V(-1.25, 1.2, 0), V(-1.303993, 1.2, 0)),  # 0
    Part.ArcOfCircle(Part.Circle(V(-1.303993, 1.15, 0), V(0, 0, 1), 0.05), math.radians(90.000001), math.radians(175.236356)),  # 1
    Part.LineSegment(V(-1.353821, 1.154152, 0), V(-1.449236, 0.00917, 0)),  # 2
    Part.ArcOfCircle(Part.Circle(V(-1.459201, 0.01, 0), V(0, 0, 1), 0.01), math.radians(-90), math.radians(-4.763643)),  # 3
    Part.LineSegment(V(-1.459201, 0, 0), V(-1.55, 0, 0)),  # 4
    Part.LineSegment(V(-1.55, 0, 0), V(-1.55, -0.04, 0)),  # 5
    Part.LineSegment(V(-1.55, -0.04, 0), V(-1.459201, -0.04, 0)),  # 6
    Part.ArcOfCircle(Part.Circle(V(-1.459201, 0.01, 0), V(0, 0, 1), 0.05), math.radians(-90), math.radians(-4.763642)),  # 7
    Part.LineSegment(V(-1.409374, 0.005848, 0), V(-1.313959, 1.15083, 0)),  # 8
    Part.ArcOfCircle(Part.Circle(V(-1.303993, 1.15, 0), V(0, 0, 1), 0.01), math.radians(90), math.radians(175.236357)),  # 9
    Part.LineSegment(V(-1.303993, 1.16, 0), V(-1.25, 1.16, 0)),  # 10
    Part.LineSegment(V(-1.25, 1.16, 0), V(-1.25, 1.2, 0)),  # 11
], False)
sketch9.addConstraint([
    Sketcher.Constraint("Tangent", 0, 2, 1, 1),
    Sketcher.Constraint("Tangent", 1, 2, 2, 1),
    Sketcher.Constraint("Tangent", 2, 2, 3, 2),
    Sketcher.Constraint("Tangent", 3, 1, 4, 1),
    Sketcher.Constraint("Coincident", 4, 2, 5, 1),
    Sketcher.Constraint("Coincident", 5, 2, 6, 1),
    Sketcher.Constraint("Tangent", 6, 2, 7, 1),
    Sketcher.Constraint("Tangent", 7, 2, 8, 1),
    Sketcher.Constraint("Tangent", 8, 2, 9, 2),
    Sketcher.Constraint("Tangent", 9, 1, 10, 1),
    Sketcher.Constraint("Coincident", 10, 2, 11, 1),
    Sketcher.Constraint("Coincident", 11, 2, 0, 1),
    Sketcher.Constraint("Horizontal", 0),
    Sketcher.Constraint("Horizontal", 4),
    Sketcher.Constraint("Vertical", 5),
    Sketcher.Constraint("Horizontal", 6),
    Sketcher.Constraint("Horizontal", 10),
    Sketcher.Constraint("Vertical", 11),
    Sketcher.Constraint("Coincident", 7, 3, 3, 3),
    Sketcher.Constraint("Coincident", 9, 3, 1, 3),
    Sketcher.Constraint("Equal", 1, 7),
    Sketcher.Constraint("Equal", 3, 9),
    Sketcher.Constraint("PointOnObject", 3, 1, -1),
    Sketcher.Constraint("Radius", 1, Q("0.05 mm")),
    Sketcher.Constraint("Radius", 3, Q("0.01 mm")),
    Sketcher.Constraint("DistanceY", -1, 1, 0, 2, Q("1.2 mm")),
    Sketcher.Constraint("DistanceX", 4, 2, -1, 1, Q("1.55 mm")),
    Sketcher.Constraint("DistanceX", 10, 2, -1, 1, Q("1.25 mm")),
    Sketcher.Constraint("DistanceX", 4, 2, 4, 1, Q("0.090799 mm")),
    Sketcher.Constraint("Distance", 2, Q("1.148951 mm")),
])
pad9 = body.newObject("PartDesign::Pad", "Pad008")
pad9.Profile = sketch9
pad9.Length = 0.2
pad9.Midplane = True

# Sketch on YZ plane
sketch10 = body.newObject("Sketcher::SketchObject", "Sketch009")
sketch10.AttachmentSupport = (doc.getObject("YZ_Plane"), [""])
sketch10.MapMode = "FlatFace"
sketch10.AttachmentOffset = App.Placement(V(0, 0, 1.6), App.Rotation())
sketch10.addGeometry([
    Part.LineSegment(V(-1.25, 1.2, 0), V(-1.303993, 1.2, 0)),  # 0
    Part.ArcOfCircle(Part.Circle(V(-1.303993, 1.15, 0), V(0, 0, 1), 0.05), math.radians(90.000001), math.radians(175.236356)),  # 1
    Part.LineSegment(V(-1.353821, 1.154152, 0), V(-1.449236, 0.00917, 0)),  # 2
    Part.ArcOfCircle(Part.Circle(V(-1.459201, 0.01, 0), V(0, 0, 1), 0.01), math.radians(-90), math.radians(-4.763643)),  # 3
    Part.LineSegment(V(-1.459201, 0, 0), V(-1.55, 0, 0)),  # 4
    Part.LineSegment(V(-1.55, 0, 0), V(-1.55, -0.04, 0)),  # 5
    Part.LineSegment(V(-1.55, -0.04, 0), V(-1.459201, -0.04, 0)),  # 6
    Part.ArcOfCircle(Part.Circle(V(-1.459201, 0.01, 0), V(0, 0, 1), 0.05), math.radians(-90), math.radians(-4.763642)),  # 7
    Part.LineSegment(V(-1.409374, 0.005848, 0), V(-1.313959, 1.15083, 0)),  # 8
    Part.ArcOfCircle(Part.Circle(V(-1.303993, 1.15, 0), V(0, 0, 1), 0.01), math.radians(90), math.radians(175.236357)),  # 9
    Part.LineSegment(V(-1.303993, 1.16, 0), V(-1.25, 1.16, 0)),  # 10
    Part.LineSegment(V(-1.25, 1.16, 0), V(-1.25, 1.2, 0)),  # 11
], False)
sketch10.addConstraint([
    Sketcher.Constraint("Tangent", 0, 2, 1, 1),
    Sketcher.Constraint("Tangent", 1, 2, 2, 1),
    Sketcher.Constraint("Tangent", 2, 2, 3, 2),
    Sketcher.Constraint("Tangent", 3, 1, 4, 1),
    Sketcher.Constraint("Coincident", 4, 2, 5, 1),
    Sketcher.Constraint("Coincident", 5, 2, 6, 1),
    Sketcher.Constraint("Tangent", 6, 2, 7, 1),
    Sketcher.Constraint("Tangent", 7, 2, 8, 1),
    Sketcher.Constraint("Tangent", 8, 2, 9, 2),
    Sketcher.Constraint("Tangent", 9, 1, 10, 1),
    Sketcher.Constraint("Coincident", 10, 2, 11, 1),
    Sketcher.Constraint("Coincident", 11, 2, 0, 1),
    Sketcher.Constraint("Horizontal", 0),
    Sketcher.Constraint("Horizontal", 4),
    Sketcher.Constraint("Vertical", 5),
    Sketcher.Constraint("Horizontal", 6),
    Sketcher.Constraint("Horizontal", 10),
    Sketcher.Constraint("Vertical", 11),
    Sketcher.Constraint("Coincident", 7, 3, 3, 3),
    Sketcher.Constraint("Coincident", 9, 3, 1, 3),
    Sketcher.Constraint("Equal", 1, 7),
    Sketcher.Constraint("Equal", 3, 9),
    Sketcher.Constraint("PointOnObject", 3, 1, -1),
    Sketcher.Constraint("Radius", 1, Q("0.05 mm")),
    Sketcher.Constraint("Radius", 3, Q("0.01 mm")),
    Sketcher.Constraint("DistanceY", -1, 1, 0, 2, Q("1.2 mm")),
    Sketcher.Constraint("DistanceX", 4, 2, -1, 1, Q("1.55 mm")),
    Sketcher.Constraint("DistanceX", 10, 2, -1, 1, Q("1.25 mm")),
    Sketcher.Constraint("DistanceX", 4, 2, 4, 1, Q("0.090799 mm")),
    Sketcher.Constraint("Distance", 2, Q("1.148951 mm")),
])
pad10 = body.newObject("PartDesign::Pad", "Pad009")
pad10.Profile = sketch10
pad10.Length = 0.2
pad10.Midplane = True

# Sketch on XZ plane
sketch11 = body.newObject("Sketcher::SketchObject", "Sketch010")
sketch11.AttachmentSupport = (doc.getObject("XZ_Plane"), [""])
sketch11.MapMode = "FlatFace"
add_polygon(sketch11, [(2, 1.2), (2.1, 1.2), (2.2, 0), (2.3, 0), (2.3, -0.04), (2.163195, -0.04), (2.063195, 1.16), (2, 1.16)])  # lines 0-7
sketch11.addConstraint([
    Sketcher.Constraint("Horizontal", 0),
    Sketcher.Constraint("Horizontal", 2),
    Sketcher.Constraint("Vertical", 3),
    Sketcher.Constraint("Horizontal", 4),
    Sketcher.Constraint("Horizontal", 6),
    Sketcher.Constraint("Vertical", 7),
    Sketcher.Constraint("PointOnObject", 1, 2, -1),
    Sketcher.Constraint("Parallel", 1, 5),
    Sketcher.Constraint("Equal", 0, 2),
    Sketcher.Constraint("Equal", 3, 7),
    Sketcher.Constraint("DistanceX", 0, 1, 0, 2, Q("0.1 mm")),
    Sketcher.Constraint("DistanceX", -1, 1, 6, 2, Q("2 mm")),
    Sketcher.Constraint("DistanceY", 3, 2, 3, 1, Q("0.04 mm")),
    Sketcher.Constraint("DistanceY", -1, 1, 0, 2, Q("1.2 mm")),
    Sketcher.Constraint("DistanceX", -1, 1, 1, 2, Q("2.2 mm")),
    Sketcher.Constraint("DistanceX", 4, 2, 4, 1, Q("0.136805 mm")),
])
pad11 = body.newObject("PartDesign::Pad", "Pad010")
pad11.Profile = sketch11
pad11.Length = 0.2
pad11.Midplane = True
doc.recompute()

linearpattern3 = body.newObject("PartDesign::LinearPattern", "LinearPattern002")
linearpattern3.Originals = [pad11]
linearpattern3.Direction = (doc.getObject("Y_Axis"), [""])
linearpattern3.Mode = "offset"
linearpattern3.Offset = 0.4
linearpattern3.Occurrences = 3
body.Tip = linearpattern3
doc.recompute()

linearpattern4 = body.newObject("PartDesign::LinearPattern", "LinearPattern003")
linearpattern4.Originals = [pad11]
linearpattern4.Direction = (doc.getObject("Y_Axis"), [""])
linearpattern4.Mode = "offset"
linearpattern4.Offset = 0.4
linearpattern4.Occurrences = 3
linearpattern4.Reversed = True
body.Tip = linearpattern4
doc.recompute()

mirrored2 = body.newObject("PartDesign::Mirrored", "Mirrored001")
mirrored2.Originals = [pad11]
mirrored2.MirrorPlane = (doc.getObject("YZ_Plane"), [""])
body.Tip = mirrored2

# Sketch on XZ plane
sketch12 = body.newObject("Sketcher::SketchObject", "Sketch011")
sketch12.AttachmentSupport = (doc.getObject("XZ_Plane"), [""])
sketch12.MapMode = "FlatFace"
sketch12.AttachmentOffset = App.Placement(V(0, 0, -0.4), App.Rotation())
add_polygon(sketch12, [(-2.1, 1.2), (-2, 1.2), (-2, 1.16), (-2.063195, 1.16), (-2.163195, -0.04), (-2.3, -0.04), (-2.3, 0), (-2.2, 0)])  # lines 0-7
sketch12.addConstraint([
    Sketcher.Constraint("Horizontal", 0),
    Sketcher.Constraint("Vertical", 1),
    Sketcher.Constraint("Horizontal", 2),
    Sketcher.Constraint("Horizontal", 4),
    Sketcher.Constraint("Vertical", 5),
    Sketcher.Constraint("Horizontal", 6),
    Sketcher.Constraint("PointOnObject", 5, 2, -1),
    Sketcher.Constraint("Parallel", 3, 7),
    Sketcher.Constraint("Equal", 0, 6),
    Sketcher.Constraint("Equal", 1, 5),
    Sketcher.Constraint("DistanceX", 0, 1, 0, 2, Q("0.1 mm")),
    Sketcher.Constraint("DistanceX", 0, 2, -1, 1, Q("2 mm")),
    Sketcher.Constraint("DistanceY", 1, 2, 1, 1, Q("0.04 mm")),
    Sketcher.Constraint("DistanceY", -1, 1, 0, 2, Q("1.2 mm")),
    Sketcher.Constraint("DistanceX", 4, 2, -1, 1, Q("2.3 mm")),
    Sketcher.Constraint("DistanceX", 2, 2, 2, 1, Q("0.063195 mm")),
])
pad12 = body.newObject("PartDesign::Pad", "Pad011")
pad12.Profile = sketch12
pad12.Length = 0.2
pad12.Midplane = True

# Sketch on XZ plane
sketch13 = body.newObject("Sketcher::SketchObject", "Sketch012")
sketch13.AttachmentSupport = (doc.getObject("XZ_Plane"), [""])
sketch13.MapMode = "FlatFace"
sketch13.AttachmentOffset = App.Placement(V(0, 0, -0.8), App.Rotation())
add_polygon(sketch13, [(-2.1, 1.2), (-2, 1.2), (-2, 1.16), (-2.063195, 1.16), (-2.163195, -0.04), (-2.3, -0.04), (-2.3, 0), (-2.2, 0)])  # lines 0-7
sketch13.addConstraint([
    Sketcher.Constraint("Horizontal", 0),
    Sketcher.Constraint("Vertical", 1),
    Sketcher.Constraint("Horizontal", 2),
    Sketcher.Constraint("Horizontal", 4),
    Sketcher.Constraint("Vertical", 5),
    Sketcher.Constraint("Horizontal", 6),
    Sketcher.Constraint("PointOnObject", 5, 2, -1),
    Sketcher.Constraint("Parallel", 3, 7),
    Sketcher.Constraint("Equal", 0, 6),
    Sketcher.Constraint("Equal", 1, 5),
    Sketcher.Constraint("DistanceX", 0, 1, 0, 2, Q("0.1 mm")),
    Sketcher.Constraint("DistanceX", 0, 2, -1, 1, Q("2 mm")),
    Sketcher.Constraint("DistanceY", 1, 2, 1, 1, Q("0.04 mm")),
    Sketcher.Constraint("DistanceY", -1, 1, 0, 2, Q("1.2 mm")),
    Sketcher.Constraint("DistanceX", 4, 2, -1, 1, Q("2.3 mm")),
    Sketcher.Constraint("DistanceX", 2, 2, 2, 1, Q("0.063195 mm")),
])
pad13 = body.newObject("PartDesign::Pad", "Pad012")
pad13.Profile = sketch13
pad13.Length = 0.2
pad13.Midplane = True

# Sketch on XZ plane
sketch14 = body.newObject("Sketcher::SketchObject", "Sketch013")
sketch14.AttachmentSupport = (doc.getObject("XZ_Plane"), [""])
sketch14.MapMode = "FlatFace"
sketch14.AttachmentOffset = App.Placement(V(0, 0, 0.4), App.Rotation())
add_polygon(sketch14, [(-2.1, 1.2), (-2, 1.2), (-2, 1.16), (-2.063195, 1.16), (-2.163195, -0.04), (-2.3, -0.04), (-2.3, 0), (-2.2, 0)])  # lines 0-7
sketch14.addConstraint([
    Sketcher.Constraint("Horizontal", 0),
    Sketcher.Constraint("Vertical", 1),
    Sketcher.Constraint("Horizontal", 2),
    Sketcher.Constraint("Horizontal", 4),
    Sketcher.Constraint("Vertical", 5),
    Sketcher.Constraint("Horizontal", 6),
    Sketcher.Constraint("PointOnObject", 5, 2, -1),
    Sketcher.Constraint("Parallel", 3, 7),
    Sketcher.Constraint("Equal", 0, 6),
    Sketcher.Constraint("Equal", 1, 5),
    Sketcher.Constraint("DistanceX", 0, 1, 0, 2, Q("0.1 mm")),
    Sketcher.Constraint("DistanceX", 0, 2, -1, 1, Q("2 mm")),
    Sketcher.Constraint("DistanceY", 1, 2, 1, 1, Q("0.04 mm")),
    Sketcher.Constraint("DistanceY", -1, 1, 0, 2, Q("1.2 mm")),
    Sketcher.Constraint("DistanceX", 4, 2, -1, 1, Q("2.3 mm")),
    Sketcher.Constraint("DistanceX", 2, 2, 2, 1, Q("0.063195 mm")),
])
pad14 = body.newObject("PartDesign::Pad", "Pad013")
pad14.Profile = sketch14
pad14.Length = 0.2
pad14.Midplane = True

# Sketch on XZ plane
sketch15 = body.newObject("Sketcher::SketchObject", "Sketch014")
sketch15.AttachmentSupport = (doc.getObject("XZ_Plane"), [""])
sketch15.MapMode = "FlatFace"
sketch15.AttachmentOffset = App.Placement(V(0, 0, 0.8), App.Rotation())
add_polygon(sketch15, [(-2.1, 1.2), (-2, 1.2), (-2, 1.16), (-2.063195, 1.16), (-2.163195, -0.04), (-2.3, -0.04), (-2.3, 0), (-2.2, 0)])  # lines 0-7
sketch15.addConstraint([
    Sketcher.Constraint("Horizontal", 0),
    Sketcher.Constraint("Vertical", 1),
    Sketcher.Constraint("Horizontal", 2),
    Sketcher.Constraint("Horizontal", 4),
    Sketcher.Constraint("Vertical", 5),
    Sketcher.Constraint("Horizontal", 6),
    Sketcher.Constraint("PointOnObject", 5, 2, -1),
    Sketcher.Constraint("Parallel", 3, 7),
    Sketcher.Constraint("Equal", 0, 6),
    Sketcher.Constraint("Equal", 1, 5),
    Sketcher.Constraint("DistanceX", 0, 1, 0, 2, Q("0.1 mm")),
    Sketcher.Constraint("DistanceX", 0, 2, -1, 1, Q("2 mm")),
    Sketcher.Constraint("DistanceY", 1, 2, 1, 1, Q("0.04 mm")),
    Sketcher.Constraint("DistanceY", -1, 1, 0, 2, Q("1.2 mm")),
    Sketcher.Constraint("DistanceX", 4, 2, -1, 1, Q("2.3 mm")),
    Sketcher.Constraint("DistanceX", 2, 2, 2, 1, Q("0.063195 mm")),
])
pad15 = body.newObject("PartDesign::Pad", "Pad014")
pad15.Profile = sketch15
pad15.Length = 0.2
pad15.Midplane = True
doc.recompute()

chamfer = body.newObject("PartDesign::Chamfer", "Chamfer")
chamfer.Base = (pad15, edges_at(pad15, [
    (0, -1.25, 1.4),
    (2, 0, 1.4),
    (0, 1.25, 1.4),
    (-2, 0, 1.4),
]))
chamfer.Size = 0.1

doc.recompute()
